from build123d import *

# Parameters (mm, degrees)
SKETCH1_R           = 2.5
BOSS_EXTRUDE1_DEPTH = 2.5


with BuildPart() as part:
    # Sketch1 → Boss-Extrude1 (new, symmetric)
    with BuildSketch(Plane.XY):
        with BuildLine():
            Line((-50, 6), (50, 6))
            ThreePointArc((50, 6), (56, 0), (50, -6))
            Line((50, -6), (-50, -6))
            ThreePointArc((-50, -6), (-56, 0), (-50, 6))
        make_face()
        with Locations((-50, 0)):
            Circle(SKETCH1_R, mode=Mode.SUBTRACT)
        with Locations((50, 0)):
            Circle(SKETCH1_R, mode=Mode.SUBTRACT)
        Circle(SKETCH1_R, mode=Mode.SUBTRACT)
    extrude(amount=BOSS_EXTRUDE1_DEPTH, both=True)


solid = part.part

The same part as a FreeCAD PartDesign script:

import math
import FreeCAD as App
import Part
import Sketcher

V = App.Vector
Q = App.Units.Quantity

doc = App.newDocument("Part")
body = doc.addObject("PartDesign::Body", "Body")

# Sketch on XY plane
sketch1 = body.newObject("Sketcher::SketchObject", "Sketch")
sketch1.AttachmentSupport = (doc.getObject("XY_Plane"), [""])
sketch1.MapMode = "FlatFace"
sketch1.addGeometry([
    Part.LineSegment(V(50, 6, 0), V(-50, 6, 0)),  # 0
    Part.ArcOfCircle(Part.Circle(V(-50, 0, 0), V(0, 0, 1), 6), math.radians(90), math.radians(270)),  # 1
    Part.LineSegment(V(-50, -6, 0), V(50, -6, 0)),  # 2
    Part.ArcOfCircle(Part.Circle(V(50, 0, 0), V(0, 0, 1), 6), math.radians(-90), math.radians(90)),  # 3
    Part.Circle(V(50, 0, 0), V(0, 0, 1), 2.5),  # 4
    Part.Circle(V(0, 0, 0), V(0, 0, 1), 2.5),  # 5
    Part.Circle(V(-50, 0, 0), V(0, 0, 1), 2.5),  # 6
], False)
sketch1.addConstraint([
    Sketcher.Constraint("Tangent", 0, 2, 1, 1),
    Sketcher.Constraint("Tangent", 1, 2, 2, 1),
    Sketcher.Constraint("Tangent", 2, 2, 3, 1),
    Sketcher.Constraint("Tangent", 3, 2, 0, 1),
    Sketcher.Constraint("Horizontal", 0),
    Sketcher.Constraint("Horizontal", 2),
    Sketcher.Constraint("Coincident", 5, 3, -1, 1),
    Sketcher.Constraint("Coincident", 4, 3, 3, 3),
    Sketcher.Constraint("Coincident", 6, 3, 1, 3),
    Sketcher.Constraint("Equal", 4, 5),
    Sketcher.Constraint("Equal", 5, 6),
    Sketcher.Constraint("Symmetric", 1, 3, 3, 3, -1, 1),
    Sketcher.Constraint("Diameter", 4, Q("5 mm")),
    Sketcher.Constraint("Radius", 1, Q("6 mm")),
    Sketcher.Constraint("DistanceX", 0, 2, 0, 1, Q("100 mm")),
])
pad1 = body.newObject("PartDesign::Pad", "Pad")
pad1.Profile = sketch1
pad1.Length = 5
pad1.Midplane = True

doc.recompute()
